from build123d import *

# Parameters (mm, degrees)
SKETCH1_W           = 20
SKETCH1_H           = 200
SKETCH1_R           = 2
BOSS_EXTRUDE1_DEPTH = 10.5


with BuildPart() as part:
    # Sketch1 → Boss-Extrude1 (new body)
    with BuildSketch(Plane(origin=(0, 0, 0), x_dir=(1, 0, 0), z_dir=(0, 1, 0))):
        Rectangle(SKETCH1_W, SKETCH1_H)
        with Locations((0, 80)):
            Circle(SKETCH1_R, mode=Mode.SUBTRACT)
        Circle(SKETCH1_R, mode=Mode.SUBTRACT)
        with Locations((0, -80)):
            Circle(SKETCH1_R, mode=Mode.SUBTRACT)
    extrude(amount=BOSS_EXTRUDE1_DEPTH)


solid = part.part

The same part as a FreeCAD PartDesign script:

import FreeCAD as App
import Part
import Sketcher

V = App.Vector
Q = App.Units.Quantity

doc = App.newDocument("Part")
body = doc.addObject("PartDesign::Body", "Body")

# Sketch on XZ plane
sketch1 = body.newObject("Sketcher::SketchObject", "Sketch")
sketch1.AttachmentSupport = (doc.getObject("XZ_Plane"), [""])
sketch1.MapMode = "FlatFace"
sketch1.addGeometry(Part.LineSegment(V(-10, -100, 0), V(-10, 100, 0)), False)
sketch1.addGeometry(Part.LineSegment(V(-10, 100, 0), V(10, 100, 0)), False)
sketch1.addGeometry(Part.LineSegment(V(10, 100, 0), V(10, -100, 0)), False)
sketch1.addGeometry(Part.LineSegment(V(10, -100, 0), V(-10, -100, 0)), False)
sketch1.addGeometry(Part.Circle(V(0, 80, 0), V(0, 0, 1), 2), False)
sketch1.addGeometry(Part.Circle(V(0, 0, 0), V(0, 0, 1), 2), False)
sketch1.addGeometry(Part.Circle(V(0, -80, 0), V(0, 0, 1), 2), False)
sketch1.addConstraint(Sketcher.Constraint("Coincident", 0, 2, 1, 1))
sketch1.addConstraint(Sketcher.Constraint("Coincident", 1, 2, 2, 1))
sketch1.addConstraint(Sketcher.Constraint("Coincident", 2, 2, 3, 1))
sketch1.addConstraint(Sketcher.Constraint("Coincident", 3, 2, 0, 1))
sketch1.addConstraint(Sketcher.Constraint("Vertical", 0))
sketch1.addConstraint(Sketcher.Constraint("Horizontal", 1))
sketch1.addConstraint(Sketcher.Constraint("Vertical", 2))
sketch1.addConstraint(Sketcher.Constraint("Horizontal", 3))
sketch1.addConstraint(Sketcher.Constraint("Coincident", 5, 3, -1, 1))
sketch1.addConstraint(Sketcher.Constraint("Equal", 4, 5))
sketch1.addConstraint(Sketcher.Constraint("Equal", 5, 6))
sketch1.addConstraint(Sketcher.Constraint("Symmetric", 4, 3, 6, 3, -1, 1))
sketch1.addConstraint(Sketcher.Constraint("Symmetric", 0, 2, 2, 2, -1, 1))
sketch1.addConstraint(Sketcher.Constraint("PointOnObject", 4, 3, -2))
sketch1.addConstraint(Sketcher.Constraint("Diameter", 4, Q("4 mm")))
sketch1.addConstraint(Sketcher.Constraint("DistanceX", 1, 1, 1, 2, Q("20 mm")))
sketch1.addConstraint(Sketcher.Constraint("DistanceY", 0, 1, 0, 2, Q("200 mm")))
sketch1.addConstraint(Sketcher.Constraint("DistanceY", -1, 1, 4, 3, Q("80 mm")))
pad1 = body.newObject("PartDesign::Pad", "Pad")
pad1.Profile = sketch1
pad1.Length = 10.5
pad1.Reversed = True

doc.recompute()
